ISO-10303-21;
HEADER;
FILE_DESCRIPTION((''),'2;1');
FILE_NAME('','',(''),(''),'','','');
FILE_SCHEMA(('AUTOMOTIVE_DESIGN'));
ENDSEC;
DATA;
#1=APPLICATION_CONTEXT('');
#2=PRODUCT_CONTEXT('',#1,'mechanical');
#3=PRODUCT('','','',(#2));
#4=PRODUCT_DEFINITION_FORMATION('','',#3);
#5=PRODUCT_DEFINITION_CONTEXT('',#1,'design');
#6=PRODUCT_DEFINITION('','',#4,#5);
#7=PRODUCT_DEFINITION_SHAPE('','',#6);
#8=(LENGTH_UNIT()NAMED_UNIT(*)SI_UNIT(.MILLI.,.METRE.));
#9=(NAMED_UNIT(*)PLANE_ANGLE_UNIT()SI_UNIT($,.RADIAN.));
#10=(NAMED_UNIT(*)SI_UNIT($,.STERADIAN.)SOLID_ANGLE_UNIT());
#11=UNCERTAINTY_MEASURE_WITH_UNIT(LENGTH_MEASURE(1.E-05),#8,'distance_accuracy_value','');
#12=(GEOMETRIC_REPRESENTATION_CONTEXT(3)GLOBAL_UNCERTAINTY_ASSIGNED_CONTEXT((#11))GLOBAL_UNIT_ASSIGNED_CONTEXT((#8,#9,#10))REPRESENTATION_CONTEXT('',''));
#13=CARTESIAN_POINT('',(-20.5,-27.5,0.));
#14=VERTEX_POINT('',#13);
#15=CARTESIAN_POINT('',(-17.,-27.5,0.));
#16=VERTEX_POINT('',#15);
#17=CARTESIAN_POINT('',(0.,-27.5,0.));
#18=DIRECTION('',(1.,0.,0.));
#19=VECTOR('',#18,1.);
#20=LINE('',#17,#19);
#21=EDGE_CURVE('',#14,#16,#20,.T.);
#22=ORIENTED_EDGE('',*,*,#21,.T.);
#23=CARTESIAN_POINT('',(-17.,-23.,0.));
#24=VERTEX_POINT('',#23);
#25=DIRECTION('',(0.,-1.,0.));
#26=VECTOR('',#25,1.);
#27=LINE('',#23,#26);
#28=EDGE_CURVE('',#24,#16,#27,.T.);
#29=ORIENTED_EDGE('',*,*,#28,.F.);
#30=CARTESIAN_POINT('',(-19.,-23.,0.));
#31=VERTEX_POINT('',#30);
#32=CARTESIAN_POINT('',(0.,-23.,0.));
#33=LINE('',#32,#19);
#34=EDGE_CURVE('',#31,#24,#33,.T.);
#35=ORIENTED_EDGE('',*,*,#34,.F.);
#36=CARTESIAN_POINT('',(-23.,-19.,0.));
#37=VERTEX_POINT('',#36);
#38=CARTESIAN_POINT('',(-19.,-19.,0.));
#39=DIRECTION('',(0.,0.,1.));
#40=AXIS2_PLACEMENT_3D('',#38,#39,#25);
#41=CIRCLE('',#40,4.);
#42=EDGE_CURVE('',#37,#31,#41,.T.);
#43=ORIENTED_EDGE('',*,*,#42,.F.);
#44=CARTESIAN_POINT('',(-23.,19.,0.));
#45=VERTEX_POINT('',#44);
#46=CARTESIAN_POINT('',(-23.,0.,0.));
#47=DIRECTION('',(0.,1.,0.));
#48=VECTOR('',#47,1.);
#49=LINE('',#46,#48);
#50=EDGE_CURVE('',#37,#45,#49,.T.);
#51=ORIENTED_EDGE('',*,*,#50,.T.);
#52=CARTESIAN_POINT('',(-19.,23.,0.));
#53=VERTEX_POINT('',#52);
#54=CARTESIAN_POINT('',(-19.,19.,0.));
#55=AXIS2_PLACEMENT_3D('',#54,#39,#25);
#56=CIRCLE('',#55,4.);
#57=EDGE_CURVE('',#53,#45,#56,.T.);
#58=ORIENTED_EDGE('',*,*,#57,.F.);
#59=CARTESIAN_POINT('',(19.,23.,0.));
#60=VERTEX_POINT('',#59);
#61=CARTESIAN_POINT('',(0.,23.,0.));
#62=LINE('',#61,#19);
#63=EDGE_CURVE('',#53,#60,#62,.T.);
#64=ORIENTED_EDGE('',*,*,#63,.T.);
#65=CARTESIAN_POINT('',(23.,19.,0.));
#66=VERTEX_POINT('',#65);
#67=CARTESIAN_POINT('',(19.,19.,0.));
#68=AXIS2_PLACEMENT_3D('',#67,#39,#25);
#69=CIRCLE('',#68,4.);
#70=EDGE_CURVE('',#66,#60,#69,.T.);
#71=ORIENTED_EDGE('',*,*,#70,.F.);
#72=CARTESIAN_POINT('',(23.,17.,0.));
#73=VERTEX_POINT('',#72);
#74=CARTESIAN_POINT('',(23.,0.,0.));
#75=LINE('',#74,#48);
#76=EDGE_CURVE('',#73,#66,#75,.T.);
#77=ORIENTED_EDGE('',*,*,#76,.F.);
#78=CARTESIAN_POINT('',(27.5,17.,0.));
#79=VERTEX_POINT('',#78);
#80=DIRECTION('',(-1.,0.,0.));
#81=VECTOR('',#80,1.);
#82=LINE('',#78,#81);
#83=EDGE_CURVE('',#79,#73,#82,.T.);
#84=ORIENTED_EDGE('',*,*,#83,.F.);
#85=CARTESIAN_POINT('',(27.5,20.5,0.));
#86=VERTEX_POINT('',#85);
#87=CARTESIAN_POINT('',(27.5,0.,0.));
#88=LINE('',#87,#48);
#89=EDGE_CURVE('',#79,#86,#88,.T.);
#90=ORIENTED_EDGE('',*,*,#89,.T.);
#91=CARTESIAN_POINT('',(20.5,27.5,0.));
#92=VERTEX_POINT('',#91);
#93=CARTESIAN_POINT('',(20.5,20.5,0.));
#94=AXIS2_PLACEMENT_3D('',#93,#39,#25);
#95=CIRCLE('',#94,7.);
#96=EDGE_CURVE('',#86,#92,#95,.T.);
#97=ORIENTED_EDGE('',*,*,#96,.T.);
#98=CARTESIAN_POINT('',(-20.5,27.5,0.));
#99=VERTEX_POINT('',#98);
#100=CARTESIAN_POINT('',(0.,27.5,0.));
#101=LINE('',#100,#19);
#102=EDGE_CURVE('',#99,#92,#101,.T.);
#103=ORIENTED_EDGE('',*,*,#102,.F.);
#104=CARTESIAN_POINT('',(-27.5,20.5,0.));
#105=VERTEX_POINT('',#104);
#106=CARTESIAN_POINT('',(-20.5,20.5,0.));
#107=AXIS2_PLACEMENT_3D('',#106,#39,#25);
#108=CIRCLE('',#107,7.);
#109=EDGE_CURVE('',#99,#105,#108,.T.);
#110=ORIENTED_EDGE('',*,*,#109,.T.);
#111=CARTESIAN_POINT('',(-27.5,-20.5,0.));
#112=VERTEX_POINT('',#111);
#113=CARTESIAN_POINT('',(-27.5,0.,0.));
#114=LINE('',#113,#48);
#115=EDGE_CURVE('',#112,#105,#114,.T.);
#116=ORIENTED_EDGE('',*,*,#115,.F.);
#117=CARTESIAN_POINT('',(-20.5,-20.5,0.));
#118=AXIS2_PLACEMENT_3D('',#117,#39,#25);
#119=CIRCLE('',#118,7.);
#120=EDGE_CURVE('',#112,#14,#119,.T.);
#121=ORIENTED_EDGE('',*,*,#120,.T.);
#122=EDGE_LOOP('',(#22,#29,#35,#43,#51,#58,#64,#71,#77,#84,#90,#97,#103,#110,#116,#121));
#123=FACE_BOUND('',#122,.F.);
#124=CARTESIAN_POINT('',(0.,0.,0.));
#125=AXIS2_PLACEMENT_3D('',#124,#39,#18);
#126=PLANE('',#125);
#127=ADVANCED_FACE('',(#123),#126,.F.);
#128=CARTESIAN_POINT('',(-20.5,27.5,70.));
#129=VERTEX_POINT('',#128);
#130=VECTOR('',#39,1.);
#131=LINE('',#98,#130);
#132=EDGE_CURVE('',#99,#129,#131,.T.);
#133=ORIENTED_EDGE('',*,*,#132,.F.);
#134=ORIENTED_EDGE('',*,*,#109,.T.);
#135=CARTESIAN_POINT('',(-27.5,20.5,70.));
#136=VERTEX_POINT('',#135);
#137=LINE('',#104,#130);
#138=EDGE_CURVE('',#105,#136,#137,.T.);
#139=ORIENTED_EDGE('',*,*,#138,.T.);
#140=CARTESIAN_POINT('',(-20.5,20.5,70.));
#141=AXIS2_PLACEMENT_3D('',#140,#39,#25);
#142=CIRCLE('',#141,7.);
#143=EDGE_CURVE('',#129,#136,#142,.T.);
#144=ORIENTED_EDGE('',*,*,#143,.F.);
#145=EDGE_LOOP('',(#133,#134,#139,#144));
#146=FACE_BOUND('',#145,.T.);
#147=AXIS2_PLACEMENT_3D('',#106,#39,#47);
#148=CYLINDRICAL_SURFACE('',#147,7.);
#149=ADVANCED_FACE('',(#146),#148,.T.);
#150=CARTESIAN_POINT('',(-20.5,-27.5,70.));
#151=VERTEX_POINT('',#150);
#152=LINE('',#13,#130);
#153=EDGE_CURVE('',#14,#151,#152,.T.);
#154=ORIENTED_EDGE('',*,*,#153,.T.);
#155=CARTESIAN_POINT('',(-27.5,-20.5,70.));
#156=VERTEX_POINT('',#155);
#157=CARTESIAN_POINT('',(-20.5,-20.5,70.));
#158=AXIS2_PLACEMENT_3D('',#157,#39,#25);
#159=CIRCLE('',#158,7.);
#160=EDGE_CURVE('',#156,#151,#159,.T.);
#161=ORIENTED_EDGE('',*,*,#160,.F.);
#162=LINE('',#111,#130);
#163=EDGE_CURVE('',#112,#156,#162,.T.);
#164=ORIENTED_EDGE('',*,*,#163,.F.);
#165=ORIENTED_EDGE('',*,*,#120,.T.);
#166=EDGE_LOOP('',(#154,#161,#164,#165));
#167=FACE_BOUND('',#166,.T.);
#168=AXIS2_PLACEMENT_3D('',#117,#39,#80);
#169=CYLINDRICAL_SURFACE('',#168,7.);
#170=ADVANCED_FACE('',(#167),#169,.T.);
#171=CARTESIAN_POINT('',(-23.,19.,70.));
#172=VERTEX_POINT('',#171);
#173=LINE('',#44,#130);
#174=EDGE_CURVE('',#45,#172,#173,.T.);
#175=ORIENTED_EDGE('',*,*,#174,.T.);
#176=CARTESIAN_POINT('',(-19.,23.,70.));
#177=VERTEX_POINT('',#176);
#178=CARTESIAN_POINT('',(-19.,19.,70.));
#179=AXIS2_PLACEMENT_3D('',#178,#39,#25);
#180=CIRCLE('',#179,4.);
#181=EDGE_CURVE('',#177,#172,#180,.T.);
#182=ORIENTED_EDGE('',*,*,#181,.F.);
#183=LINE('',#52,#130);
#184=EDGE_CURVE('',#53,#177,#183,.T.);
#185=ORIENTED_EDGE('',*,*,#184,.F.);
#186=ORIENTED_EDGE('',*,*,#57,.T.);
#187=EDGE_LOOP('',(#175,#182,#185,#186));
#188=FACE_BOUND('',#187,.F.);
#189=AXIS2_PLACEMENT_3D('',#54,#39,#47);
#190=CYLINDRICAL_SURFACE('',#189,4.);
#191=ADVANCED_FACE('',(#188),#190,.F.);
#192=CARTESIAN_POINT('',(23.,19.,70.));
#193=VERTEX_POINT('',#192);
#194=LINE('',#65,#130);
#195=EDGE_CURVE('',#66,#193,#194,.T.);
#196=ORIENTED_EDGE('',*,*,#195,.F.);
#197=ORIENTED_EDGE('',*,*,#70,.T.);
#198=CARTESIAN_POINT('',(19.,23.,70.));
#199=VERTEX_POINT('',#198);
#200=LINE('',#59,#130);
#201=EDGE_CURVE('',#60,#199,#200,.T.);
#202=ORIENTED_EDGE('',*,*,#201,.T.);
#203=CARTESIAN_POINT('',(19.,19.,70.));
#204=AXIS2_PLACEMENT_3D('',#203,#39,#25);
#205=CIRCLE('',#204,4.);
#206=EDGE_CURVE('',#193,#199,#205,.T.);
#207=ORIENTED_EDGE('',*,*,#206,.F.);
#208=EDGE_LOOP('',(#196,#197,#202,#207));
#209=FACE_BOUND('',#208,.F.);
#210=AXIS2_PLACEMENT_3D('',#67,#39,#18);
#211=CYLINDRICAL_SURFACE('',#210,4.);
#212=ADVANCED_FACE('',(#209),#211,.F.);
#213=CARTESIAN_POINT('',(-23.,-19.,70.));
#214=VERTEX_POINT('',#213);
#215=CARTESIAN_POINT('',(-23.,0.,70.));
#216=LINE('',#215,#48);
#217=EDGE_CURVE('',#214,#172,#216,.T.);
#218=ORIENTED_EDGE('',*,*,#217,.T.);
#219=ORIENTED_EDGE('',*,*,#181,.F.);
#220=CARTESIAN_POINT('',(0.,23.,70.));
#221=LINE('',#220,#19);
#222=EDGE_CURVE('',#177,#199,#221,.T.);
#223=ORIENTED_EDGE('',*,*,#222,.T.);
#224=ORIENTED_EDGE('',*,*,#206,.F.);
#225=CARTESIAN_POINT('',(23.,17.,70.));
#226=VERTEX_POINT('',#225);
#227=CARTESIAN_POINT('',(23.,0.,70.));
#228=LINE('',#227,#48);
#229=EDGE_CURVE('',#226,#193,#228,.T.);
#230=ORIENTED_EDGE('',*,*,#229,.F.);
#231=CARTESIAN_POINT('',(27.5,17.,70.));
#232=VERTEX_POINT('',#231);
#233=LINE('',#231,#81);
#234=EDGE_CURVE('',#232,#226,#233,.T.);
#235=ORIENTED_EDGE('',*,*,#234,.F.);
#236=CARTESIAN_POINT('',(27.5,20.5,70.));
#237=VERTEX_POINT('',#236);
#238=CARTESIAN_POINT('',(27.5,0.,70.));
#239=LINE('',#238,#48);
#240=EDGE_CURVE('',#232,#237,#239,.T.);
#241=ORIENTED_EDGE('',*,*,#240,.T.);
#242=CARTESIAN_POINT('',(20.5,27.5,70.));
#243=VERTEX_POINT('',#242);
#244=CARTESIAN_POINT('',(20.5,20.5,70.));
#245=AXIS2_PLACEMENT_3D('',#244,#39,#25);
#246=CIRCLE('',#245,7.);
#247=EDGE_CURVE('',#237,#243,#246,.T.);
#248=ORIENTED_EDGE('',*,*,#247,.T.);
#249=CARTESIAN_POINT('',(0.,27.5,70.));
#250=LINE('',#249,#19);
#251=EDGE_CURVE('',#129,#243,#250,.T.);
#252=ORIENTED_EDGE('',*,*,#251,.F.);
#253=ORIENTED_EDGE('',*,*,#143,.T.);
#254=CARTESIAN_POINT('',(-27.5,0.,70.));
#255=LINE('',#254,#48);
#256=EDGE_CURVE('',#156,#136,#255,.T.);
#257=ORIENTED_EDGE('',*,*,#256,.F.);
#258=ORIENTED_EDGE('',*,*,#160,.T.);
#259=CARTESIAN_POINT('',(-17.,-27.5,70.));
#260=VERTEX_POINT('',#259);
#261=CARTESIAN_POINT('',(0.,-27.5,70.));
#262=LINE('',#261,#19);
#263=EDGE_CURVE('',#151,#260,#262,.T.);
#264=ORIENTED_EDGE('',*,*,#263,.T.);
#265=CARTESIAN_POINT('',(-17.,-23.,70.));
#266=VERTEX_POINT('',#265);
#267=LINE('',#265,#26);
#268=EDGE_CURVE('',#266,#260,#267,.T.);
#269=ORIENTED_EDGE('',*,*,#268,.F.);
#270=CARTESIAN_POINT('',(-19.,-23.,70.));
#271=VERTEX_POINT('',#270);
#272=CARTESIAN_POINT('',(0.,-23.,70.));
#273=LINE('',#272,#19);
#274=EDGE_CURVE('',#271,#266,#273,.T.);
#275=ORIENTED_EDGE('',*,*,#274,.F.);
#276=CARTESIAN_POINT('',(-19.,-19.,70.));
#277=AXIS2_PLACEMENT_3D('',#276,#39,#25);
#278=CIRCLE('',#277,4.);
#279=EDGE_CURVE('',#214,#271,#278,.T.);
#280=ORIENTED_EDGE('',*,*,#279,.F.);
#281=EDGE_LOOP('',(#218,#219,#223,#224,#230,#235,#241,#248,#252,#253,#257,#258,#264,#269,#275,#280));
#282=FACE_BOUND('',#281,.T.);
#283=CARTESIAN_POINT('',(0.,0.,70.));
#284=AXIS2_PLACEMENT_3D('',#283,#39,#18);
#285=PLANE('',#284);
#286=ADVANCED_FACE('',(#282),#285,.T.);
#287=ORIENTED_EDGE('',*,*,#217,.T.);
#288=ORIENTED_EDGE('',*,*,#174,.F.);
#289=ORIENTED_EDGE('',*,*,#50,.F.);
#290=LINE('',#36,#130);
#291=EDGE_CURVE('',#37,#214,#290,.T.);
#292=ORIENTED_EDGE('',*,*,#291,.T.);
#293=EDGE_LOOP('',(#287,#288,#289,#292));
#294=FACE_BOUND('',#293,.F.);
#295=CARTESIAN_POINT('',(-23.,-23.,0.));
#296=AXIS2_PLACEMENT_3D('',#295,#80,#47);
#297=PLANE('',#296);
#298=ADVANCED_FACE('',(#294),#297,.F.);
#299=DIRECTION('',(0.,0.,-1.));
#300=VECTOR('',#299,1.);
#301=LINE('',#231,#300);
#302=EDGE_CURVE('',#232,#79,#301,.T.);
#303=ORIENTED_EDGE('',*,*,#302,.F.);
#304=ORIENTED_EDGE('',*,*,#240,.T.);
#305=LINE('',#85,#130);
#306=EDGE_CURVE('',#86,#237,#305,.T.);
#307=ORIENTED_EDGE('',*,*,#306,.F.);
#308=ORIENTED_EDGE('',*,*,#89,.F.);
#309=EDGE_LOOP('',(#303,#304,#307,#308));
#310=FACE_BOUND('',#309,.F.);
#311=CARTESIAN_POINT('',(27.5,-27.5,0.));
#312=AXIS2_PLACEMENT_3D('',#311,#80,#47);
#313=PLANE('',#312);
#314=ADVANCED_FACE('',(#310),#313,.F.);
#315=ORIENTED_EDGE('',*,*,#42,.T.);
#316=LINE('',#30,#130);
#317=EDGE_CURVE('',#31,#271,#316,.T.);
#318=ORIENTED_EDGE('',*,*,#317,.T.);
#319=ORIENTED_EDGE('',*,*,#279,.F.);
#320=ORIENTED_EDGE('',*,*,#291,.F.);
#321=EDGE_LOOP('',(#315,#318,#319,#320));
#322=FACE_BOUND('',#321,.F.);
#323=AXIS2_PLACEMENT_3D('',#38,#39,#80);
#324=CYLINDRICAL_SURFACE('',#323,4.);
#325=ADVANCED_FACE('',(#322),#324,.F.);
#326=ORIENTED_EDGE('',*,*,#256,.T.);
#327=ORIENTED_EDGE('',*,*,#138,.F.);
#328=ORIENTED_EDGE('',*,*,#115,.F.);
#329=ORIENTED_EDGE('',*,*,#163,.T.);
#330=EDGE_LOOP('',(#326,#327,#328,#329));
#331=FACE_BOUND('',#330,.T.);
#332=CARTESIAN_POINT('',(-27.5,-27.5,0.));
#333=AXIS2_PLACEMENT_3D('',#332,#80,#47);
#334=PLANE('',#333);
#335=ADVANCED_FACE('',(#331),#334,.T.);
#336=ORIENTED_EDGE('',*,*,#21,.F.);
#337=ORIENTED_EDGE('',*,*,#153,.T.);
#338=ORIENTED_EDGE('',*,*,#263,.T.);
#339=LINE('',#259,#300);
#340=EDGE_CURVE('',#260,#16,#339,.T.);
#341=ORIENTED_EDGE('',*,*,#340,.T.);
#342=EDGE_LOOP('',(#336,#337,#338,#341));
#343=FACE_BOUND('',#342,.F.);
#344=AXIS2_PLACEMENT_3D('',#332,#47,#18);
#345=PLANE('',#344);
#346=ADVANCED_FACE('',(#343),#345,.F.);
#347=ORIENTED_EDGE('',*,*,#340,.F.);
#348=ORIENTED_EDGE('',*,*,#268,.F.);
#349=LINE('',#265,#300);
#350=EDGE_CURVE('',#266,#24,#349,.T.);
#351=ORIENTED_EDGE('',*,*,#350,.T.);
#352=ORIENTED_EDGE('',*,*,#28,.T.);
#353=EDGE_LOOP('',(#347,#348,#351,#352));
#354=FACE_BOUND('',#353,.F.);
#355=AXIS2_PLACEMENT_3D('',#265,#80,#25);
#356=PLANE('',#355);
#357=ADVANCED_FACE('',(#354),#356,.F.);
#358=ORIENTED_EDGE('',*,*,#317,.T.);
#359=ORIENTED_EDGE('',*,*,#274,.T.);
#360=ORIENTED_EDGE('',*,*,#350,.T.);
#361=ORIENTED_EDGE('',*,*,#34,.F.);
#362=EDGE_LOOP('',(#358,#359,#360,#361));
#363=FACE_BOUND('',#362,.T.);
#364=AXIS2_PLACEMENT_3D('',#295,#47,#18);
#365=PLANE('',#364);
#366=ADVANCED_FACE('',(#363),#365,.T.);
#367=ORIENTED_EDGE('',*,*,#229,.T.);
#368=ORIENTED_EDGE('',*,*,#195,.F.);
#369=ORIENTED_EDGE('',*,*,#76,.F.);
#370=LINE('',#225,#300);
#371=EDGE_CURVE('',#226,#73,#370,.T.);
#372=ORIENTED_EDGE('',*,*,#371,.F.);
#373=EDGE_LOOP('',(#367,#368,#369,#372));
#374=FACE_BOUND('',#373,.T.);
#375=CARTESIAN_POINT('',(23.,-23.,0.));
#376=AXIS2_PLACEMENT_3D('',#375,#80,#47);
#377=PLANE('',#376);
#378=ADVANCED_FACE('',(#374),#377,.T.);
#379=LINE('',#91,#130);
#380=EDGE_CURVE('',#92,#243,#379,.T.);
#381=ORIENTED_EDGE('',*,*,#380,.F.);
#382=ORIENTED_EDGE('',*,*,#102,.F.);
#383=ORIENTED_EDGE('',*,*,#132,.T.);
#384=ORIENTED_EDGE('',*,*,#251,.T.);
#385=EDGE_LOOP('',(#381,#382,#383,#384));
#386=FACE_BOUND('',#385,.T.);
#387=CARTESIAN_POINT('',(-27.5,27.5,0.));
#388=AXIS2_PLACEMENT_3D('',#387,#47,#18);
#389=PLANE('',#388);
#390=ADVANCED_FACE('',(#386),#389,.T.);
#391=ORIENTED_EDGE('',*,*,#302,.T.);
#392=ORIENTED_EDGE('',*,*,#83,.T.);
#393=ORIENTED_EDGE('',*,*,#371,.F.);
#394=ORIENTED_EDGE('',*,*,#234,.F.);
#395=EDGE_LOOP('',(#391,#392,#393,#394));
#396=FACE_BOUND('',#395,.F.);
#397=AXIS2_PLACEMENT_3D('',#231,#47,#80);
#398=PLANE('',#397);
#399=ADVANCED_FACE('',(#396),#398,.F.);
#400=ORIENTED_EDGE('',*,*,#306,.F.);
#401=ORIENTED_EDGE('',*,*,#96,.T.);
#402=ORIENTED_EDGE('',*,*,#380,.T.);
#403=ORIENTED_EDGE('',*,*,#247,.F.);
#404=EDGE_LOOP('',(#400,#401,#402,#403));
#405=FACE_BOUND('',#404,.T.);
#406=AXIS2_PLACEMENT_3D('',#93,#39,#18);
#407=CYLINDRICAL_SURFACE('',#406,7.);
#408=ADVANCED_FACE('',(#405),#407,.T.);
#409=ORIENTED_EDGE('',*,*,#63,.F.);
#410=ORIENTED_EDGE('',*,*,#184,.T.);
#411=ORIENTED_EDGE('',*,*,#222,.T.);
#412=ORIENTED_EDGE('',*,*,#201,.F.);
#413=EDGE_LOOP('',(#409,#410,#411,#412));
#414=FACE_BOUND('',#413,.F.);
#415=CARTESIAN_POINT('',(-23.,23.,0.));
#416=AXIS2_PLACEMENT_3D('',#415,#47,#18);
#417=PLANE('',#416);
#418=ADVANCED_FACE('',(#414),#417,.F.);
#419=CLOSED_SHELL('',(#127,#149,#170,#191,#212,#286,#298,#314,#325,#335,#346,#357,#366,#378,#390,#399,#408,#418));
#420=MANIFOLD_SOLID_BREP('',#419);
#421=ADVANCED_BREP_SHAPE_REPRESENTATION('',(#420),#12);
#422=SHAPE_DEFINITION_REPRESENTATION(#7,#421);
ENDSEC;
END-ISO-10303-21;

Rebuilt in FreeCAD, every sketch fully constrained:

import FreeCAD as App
import Part
import Sketcher
Q = App.Units.Quantity


def edges_at(feature, points):
    """Names of the edges that pass closest to the given points."""
    edges = feature.Shape.Edges
    near = lambda p: min(range(len(edges)), key=lambda i: edges[i].distToShape(Part.Vertex(*p))[0])
    return sorted({f"Edge{near(p) + 1}" for p in points})


def add_polygon(sketch, points):
    """Adds a closed chain of lines whose ends are joined by coincident constraints."""
    first, n = sketch.GeometryCount, len(points)
    for a, b in zip(points, points[1:] + points[:1]):
        sketch.addGeometry(Part.LineSegment(App.Vector(*a, 0), App.Vector(*b, 0)), False)
    for i in range(n):
        sketch.addConstraint(Sketcher.Constraint("Coincident", first + i, 2, first + (i + 1) % n, 1))

doc = App.newDocument("Part")
params = doc.addObject("Spreadsheet::Sheet", "Params")
for row, (alias, value) in enumerate([
    ("sketch1_width", "55 mm"),
    ("pad1_length", "70 mm"),
    ("sketch2_width", "46 mm"),
    ("pocket1_length", "70 mm"),
    ("sketch3_width", "40 mm"),
    ("sketch3_width2", "44.5 mm"),
    ("pocket2_length", "70 mm"),
    ("fillet_radius", "4 mm"),
    ("fillet2_radius", "7 mm"),
], start=1):
    params.set(f"A{row}", alias)
    params.set(f"B{row}", "=" + value)
    params.setAlias(f"B{row}", alias)

body = doc.addObject("PartDesign::Body", "Body")

sketch1 = body.newObject("Sketcher::SketchObject", "Sketch")
sketch1.AttachmentSupport = (doc.getObject("XY_Plane"), [""])
sketch1.MapMode = "FlatFace"
add_polygon(sketch1, [(-28, 28), (-28, -28), (28, -28), (28, 28)])
sketch1.addConstraint(Sketcher.Constraint("Vertical", 0))
sketch1.addConstraint(Sketcher.Constraint("Horizontal", 1))
sketch1.addConstraint(Sketcher.Constraint("Vertical", 2))
sketch1.addConstraint(Sketcher.Constraint("Horizontal", 3))
sketch1.addConstraint(Sketcher.Constraint("Symmetric", 0, 2, 2, 2, -1, 1))
sketch1.addConstraint(Sketcher.Constraint("Equal", 3, 0))
sketch1.addConstraint(Sketcher.Constraint("DistanceX", 1, 1, 1, 2, Q("55 mm")))
sketch1.setExpression("Constraints[10]", "Params.sketch1_width")
pad1 = body.newObject("PartDesign::Pad", "Pad")
pad1.Profile = sketch1
pad1.setExpression("Length", "Params.pad1_length")

sketch2 = body.newObject("Sketcher::SketchObject", "Sketch001")
sketch2.AttachmentSupport = (doc.getObject("XY_Plane"), [""])
sketch2.MapMode = "FlatFace"
add_polygon(sketch2, [(-23, 23), (-23, -23), (23, -23), (23, 23)])
sketch2.addConstraint(Sketcher.Constraint("Vertical", 0))
sketch2.addConstraint(Sketcher.Constraint("Horizontal", 1))
sketch2.addConstraint(Sketcher.Constraint("Vertical", 2))
sketch2.addConstraint(Sketcher.Constraint("Horizontal", 3))
sketch2.addConstraint(Sketcher.Constraint("Symmetric", 0, 2, 2, 2, -1, 1))
sketch2.addConstraint(Sketcher.Constraint("Equal", 3, 0))
sketch2.addConstraint(Sketcher.Constraint("DistanceX", 1, 1, 1, 2, Q("46 mm")))
sketch2.setExpression("Constraints[10]", "Params.sketch2_width")
pocket1 = body.newObject("PartDesign::Pocket", "Pocket")
pocket1.Profile = sketch2
pocket1.setExpression("Length", "Params.pocket1_length")
pocket1.Reversed = True

sketch3 = body.newObject("Sketcher::SketchObject", "Sketch002")
sketch3.AttachmentSupport = (doc.getObject("XY_Plane"), [""])
sketch3.MapMode = "FlatFace"
sketch3.AttachmentOffset = App.Placement(App.Vector(0, 0, 70), App.Rotation())
add_polygon(sketch3, [(23, -23), (-17, -23), (-17, -27.5), (27.5, -27.5), (27.5, 17), (23, 17)])
sketch3.addConstraint(Sketcher.Constraint("Horizontal", 0))
sketch3.addConstraint(Sketcher.Constraint("Vertical", 1))
sketch3.addConstraint(Sketcher.Constraint("Horizontal", 2))
sketch3.addConstraint(Sketcher.Constraint("Vertical", 3))
sketch3.addConstraint(Sketcher.Constraint("Horizontal", 4))
sketch3.addConstraint(Sketcher.Constraint("Vertical", 5))
sketch3.addConstraint(Sketcher.Constraint("Equal", 4, 1))
sketch3.addConstraint(Sketcher.Constraint("Equal", 2, 3))
sketch3.addConstraint(Sketcher.Constraint("DistanceX", 0, 2, 0, 1, Q("40 mm")))
sketch3.addConstraint(Sketcher.Constraint("DistanceX", 2, 1, 2, 2, Q("44.5 mm")))
sketch3.addConstraint(Sketcher.Constraint("DistanceX", 0, 2, -1, 1, Q("17 mm")))
sketch3.addConstraint(Sketcher.Constraint("DistanceY", 0, 2, -1, 1, Q("23 mm")))
sketch3.setExpression("Constraints[14]", "Params.sketch3_width")
sketch3.setExpression("Constraints[15]", "Params.sketch3_width2")
pocket2 = body.newObject("PartDesign::Pocket", "Pocket001")
pocket2.Profile = sketch3
pocket2.setExpression("Length", "Params.pocket2_length")
doc.recompute()

fillet = body.newObject("PartDesign::Fillet", "Fillet")
fillet.Base = (pocket2, edges_at(pocket2, [(-23, -23, 35), (-23, 23, 35), (23, 23, 35)]))
fillet.setExpression("Radius", "Params.fillet_radius")
doc.recompute()

fillet2 = body.newObject("PartDesign::Fillet", "Fillet001")
fillet2.Base = (fillet, edges_at(fillet, [(-27.5, -27.5, 35), (-27.5, 27.5, 35), (27.5, 27.5, 35)]))
fillet2.setExpression("Radius", "Params.fillet2_radius")

doc.recompute()
